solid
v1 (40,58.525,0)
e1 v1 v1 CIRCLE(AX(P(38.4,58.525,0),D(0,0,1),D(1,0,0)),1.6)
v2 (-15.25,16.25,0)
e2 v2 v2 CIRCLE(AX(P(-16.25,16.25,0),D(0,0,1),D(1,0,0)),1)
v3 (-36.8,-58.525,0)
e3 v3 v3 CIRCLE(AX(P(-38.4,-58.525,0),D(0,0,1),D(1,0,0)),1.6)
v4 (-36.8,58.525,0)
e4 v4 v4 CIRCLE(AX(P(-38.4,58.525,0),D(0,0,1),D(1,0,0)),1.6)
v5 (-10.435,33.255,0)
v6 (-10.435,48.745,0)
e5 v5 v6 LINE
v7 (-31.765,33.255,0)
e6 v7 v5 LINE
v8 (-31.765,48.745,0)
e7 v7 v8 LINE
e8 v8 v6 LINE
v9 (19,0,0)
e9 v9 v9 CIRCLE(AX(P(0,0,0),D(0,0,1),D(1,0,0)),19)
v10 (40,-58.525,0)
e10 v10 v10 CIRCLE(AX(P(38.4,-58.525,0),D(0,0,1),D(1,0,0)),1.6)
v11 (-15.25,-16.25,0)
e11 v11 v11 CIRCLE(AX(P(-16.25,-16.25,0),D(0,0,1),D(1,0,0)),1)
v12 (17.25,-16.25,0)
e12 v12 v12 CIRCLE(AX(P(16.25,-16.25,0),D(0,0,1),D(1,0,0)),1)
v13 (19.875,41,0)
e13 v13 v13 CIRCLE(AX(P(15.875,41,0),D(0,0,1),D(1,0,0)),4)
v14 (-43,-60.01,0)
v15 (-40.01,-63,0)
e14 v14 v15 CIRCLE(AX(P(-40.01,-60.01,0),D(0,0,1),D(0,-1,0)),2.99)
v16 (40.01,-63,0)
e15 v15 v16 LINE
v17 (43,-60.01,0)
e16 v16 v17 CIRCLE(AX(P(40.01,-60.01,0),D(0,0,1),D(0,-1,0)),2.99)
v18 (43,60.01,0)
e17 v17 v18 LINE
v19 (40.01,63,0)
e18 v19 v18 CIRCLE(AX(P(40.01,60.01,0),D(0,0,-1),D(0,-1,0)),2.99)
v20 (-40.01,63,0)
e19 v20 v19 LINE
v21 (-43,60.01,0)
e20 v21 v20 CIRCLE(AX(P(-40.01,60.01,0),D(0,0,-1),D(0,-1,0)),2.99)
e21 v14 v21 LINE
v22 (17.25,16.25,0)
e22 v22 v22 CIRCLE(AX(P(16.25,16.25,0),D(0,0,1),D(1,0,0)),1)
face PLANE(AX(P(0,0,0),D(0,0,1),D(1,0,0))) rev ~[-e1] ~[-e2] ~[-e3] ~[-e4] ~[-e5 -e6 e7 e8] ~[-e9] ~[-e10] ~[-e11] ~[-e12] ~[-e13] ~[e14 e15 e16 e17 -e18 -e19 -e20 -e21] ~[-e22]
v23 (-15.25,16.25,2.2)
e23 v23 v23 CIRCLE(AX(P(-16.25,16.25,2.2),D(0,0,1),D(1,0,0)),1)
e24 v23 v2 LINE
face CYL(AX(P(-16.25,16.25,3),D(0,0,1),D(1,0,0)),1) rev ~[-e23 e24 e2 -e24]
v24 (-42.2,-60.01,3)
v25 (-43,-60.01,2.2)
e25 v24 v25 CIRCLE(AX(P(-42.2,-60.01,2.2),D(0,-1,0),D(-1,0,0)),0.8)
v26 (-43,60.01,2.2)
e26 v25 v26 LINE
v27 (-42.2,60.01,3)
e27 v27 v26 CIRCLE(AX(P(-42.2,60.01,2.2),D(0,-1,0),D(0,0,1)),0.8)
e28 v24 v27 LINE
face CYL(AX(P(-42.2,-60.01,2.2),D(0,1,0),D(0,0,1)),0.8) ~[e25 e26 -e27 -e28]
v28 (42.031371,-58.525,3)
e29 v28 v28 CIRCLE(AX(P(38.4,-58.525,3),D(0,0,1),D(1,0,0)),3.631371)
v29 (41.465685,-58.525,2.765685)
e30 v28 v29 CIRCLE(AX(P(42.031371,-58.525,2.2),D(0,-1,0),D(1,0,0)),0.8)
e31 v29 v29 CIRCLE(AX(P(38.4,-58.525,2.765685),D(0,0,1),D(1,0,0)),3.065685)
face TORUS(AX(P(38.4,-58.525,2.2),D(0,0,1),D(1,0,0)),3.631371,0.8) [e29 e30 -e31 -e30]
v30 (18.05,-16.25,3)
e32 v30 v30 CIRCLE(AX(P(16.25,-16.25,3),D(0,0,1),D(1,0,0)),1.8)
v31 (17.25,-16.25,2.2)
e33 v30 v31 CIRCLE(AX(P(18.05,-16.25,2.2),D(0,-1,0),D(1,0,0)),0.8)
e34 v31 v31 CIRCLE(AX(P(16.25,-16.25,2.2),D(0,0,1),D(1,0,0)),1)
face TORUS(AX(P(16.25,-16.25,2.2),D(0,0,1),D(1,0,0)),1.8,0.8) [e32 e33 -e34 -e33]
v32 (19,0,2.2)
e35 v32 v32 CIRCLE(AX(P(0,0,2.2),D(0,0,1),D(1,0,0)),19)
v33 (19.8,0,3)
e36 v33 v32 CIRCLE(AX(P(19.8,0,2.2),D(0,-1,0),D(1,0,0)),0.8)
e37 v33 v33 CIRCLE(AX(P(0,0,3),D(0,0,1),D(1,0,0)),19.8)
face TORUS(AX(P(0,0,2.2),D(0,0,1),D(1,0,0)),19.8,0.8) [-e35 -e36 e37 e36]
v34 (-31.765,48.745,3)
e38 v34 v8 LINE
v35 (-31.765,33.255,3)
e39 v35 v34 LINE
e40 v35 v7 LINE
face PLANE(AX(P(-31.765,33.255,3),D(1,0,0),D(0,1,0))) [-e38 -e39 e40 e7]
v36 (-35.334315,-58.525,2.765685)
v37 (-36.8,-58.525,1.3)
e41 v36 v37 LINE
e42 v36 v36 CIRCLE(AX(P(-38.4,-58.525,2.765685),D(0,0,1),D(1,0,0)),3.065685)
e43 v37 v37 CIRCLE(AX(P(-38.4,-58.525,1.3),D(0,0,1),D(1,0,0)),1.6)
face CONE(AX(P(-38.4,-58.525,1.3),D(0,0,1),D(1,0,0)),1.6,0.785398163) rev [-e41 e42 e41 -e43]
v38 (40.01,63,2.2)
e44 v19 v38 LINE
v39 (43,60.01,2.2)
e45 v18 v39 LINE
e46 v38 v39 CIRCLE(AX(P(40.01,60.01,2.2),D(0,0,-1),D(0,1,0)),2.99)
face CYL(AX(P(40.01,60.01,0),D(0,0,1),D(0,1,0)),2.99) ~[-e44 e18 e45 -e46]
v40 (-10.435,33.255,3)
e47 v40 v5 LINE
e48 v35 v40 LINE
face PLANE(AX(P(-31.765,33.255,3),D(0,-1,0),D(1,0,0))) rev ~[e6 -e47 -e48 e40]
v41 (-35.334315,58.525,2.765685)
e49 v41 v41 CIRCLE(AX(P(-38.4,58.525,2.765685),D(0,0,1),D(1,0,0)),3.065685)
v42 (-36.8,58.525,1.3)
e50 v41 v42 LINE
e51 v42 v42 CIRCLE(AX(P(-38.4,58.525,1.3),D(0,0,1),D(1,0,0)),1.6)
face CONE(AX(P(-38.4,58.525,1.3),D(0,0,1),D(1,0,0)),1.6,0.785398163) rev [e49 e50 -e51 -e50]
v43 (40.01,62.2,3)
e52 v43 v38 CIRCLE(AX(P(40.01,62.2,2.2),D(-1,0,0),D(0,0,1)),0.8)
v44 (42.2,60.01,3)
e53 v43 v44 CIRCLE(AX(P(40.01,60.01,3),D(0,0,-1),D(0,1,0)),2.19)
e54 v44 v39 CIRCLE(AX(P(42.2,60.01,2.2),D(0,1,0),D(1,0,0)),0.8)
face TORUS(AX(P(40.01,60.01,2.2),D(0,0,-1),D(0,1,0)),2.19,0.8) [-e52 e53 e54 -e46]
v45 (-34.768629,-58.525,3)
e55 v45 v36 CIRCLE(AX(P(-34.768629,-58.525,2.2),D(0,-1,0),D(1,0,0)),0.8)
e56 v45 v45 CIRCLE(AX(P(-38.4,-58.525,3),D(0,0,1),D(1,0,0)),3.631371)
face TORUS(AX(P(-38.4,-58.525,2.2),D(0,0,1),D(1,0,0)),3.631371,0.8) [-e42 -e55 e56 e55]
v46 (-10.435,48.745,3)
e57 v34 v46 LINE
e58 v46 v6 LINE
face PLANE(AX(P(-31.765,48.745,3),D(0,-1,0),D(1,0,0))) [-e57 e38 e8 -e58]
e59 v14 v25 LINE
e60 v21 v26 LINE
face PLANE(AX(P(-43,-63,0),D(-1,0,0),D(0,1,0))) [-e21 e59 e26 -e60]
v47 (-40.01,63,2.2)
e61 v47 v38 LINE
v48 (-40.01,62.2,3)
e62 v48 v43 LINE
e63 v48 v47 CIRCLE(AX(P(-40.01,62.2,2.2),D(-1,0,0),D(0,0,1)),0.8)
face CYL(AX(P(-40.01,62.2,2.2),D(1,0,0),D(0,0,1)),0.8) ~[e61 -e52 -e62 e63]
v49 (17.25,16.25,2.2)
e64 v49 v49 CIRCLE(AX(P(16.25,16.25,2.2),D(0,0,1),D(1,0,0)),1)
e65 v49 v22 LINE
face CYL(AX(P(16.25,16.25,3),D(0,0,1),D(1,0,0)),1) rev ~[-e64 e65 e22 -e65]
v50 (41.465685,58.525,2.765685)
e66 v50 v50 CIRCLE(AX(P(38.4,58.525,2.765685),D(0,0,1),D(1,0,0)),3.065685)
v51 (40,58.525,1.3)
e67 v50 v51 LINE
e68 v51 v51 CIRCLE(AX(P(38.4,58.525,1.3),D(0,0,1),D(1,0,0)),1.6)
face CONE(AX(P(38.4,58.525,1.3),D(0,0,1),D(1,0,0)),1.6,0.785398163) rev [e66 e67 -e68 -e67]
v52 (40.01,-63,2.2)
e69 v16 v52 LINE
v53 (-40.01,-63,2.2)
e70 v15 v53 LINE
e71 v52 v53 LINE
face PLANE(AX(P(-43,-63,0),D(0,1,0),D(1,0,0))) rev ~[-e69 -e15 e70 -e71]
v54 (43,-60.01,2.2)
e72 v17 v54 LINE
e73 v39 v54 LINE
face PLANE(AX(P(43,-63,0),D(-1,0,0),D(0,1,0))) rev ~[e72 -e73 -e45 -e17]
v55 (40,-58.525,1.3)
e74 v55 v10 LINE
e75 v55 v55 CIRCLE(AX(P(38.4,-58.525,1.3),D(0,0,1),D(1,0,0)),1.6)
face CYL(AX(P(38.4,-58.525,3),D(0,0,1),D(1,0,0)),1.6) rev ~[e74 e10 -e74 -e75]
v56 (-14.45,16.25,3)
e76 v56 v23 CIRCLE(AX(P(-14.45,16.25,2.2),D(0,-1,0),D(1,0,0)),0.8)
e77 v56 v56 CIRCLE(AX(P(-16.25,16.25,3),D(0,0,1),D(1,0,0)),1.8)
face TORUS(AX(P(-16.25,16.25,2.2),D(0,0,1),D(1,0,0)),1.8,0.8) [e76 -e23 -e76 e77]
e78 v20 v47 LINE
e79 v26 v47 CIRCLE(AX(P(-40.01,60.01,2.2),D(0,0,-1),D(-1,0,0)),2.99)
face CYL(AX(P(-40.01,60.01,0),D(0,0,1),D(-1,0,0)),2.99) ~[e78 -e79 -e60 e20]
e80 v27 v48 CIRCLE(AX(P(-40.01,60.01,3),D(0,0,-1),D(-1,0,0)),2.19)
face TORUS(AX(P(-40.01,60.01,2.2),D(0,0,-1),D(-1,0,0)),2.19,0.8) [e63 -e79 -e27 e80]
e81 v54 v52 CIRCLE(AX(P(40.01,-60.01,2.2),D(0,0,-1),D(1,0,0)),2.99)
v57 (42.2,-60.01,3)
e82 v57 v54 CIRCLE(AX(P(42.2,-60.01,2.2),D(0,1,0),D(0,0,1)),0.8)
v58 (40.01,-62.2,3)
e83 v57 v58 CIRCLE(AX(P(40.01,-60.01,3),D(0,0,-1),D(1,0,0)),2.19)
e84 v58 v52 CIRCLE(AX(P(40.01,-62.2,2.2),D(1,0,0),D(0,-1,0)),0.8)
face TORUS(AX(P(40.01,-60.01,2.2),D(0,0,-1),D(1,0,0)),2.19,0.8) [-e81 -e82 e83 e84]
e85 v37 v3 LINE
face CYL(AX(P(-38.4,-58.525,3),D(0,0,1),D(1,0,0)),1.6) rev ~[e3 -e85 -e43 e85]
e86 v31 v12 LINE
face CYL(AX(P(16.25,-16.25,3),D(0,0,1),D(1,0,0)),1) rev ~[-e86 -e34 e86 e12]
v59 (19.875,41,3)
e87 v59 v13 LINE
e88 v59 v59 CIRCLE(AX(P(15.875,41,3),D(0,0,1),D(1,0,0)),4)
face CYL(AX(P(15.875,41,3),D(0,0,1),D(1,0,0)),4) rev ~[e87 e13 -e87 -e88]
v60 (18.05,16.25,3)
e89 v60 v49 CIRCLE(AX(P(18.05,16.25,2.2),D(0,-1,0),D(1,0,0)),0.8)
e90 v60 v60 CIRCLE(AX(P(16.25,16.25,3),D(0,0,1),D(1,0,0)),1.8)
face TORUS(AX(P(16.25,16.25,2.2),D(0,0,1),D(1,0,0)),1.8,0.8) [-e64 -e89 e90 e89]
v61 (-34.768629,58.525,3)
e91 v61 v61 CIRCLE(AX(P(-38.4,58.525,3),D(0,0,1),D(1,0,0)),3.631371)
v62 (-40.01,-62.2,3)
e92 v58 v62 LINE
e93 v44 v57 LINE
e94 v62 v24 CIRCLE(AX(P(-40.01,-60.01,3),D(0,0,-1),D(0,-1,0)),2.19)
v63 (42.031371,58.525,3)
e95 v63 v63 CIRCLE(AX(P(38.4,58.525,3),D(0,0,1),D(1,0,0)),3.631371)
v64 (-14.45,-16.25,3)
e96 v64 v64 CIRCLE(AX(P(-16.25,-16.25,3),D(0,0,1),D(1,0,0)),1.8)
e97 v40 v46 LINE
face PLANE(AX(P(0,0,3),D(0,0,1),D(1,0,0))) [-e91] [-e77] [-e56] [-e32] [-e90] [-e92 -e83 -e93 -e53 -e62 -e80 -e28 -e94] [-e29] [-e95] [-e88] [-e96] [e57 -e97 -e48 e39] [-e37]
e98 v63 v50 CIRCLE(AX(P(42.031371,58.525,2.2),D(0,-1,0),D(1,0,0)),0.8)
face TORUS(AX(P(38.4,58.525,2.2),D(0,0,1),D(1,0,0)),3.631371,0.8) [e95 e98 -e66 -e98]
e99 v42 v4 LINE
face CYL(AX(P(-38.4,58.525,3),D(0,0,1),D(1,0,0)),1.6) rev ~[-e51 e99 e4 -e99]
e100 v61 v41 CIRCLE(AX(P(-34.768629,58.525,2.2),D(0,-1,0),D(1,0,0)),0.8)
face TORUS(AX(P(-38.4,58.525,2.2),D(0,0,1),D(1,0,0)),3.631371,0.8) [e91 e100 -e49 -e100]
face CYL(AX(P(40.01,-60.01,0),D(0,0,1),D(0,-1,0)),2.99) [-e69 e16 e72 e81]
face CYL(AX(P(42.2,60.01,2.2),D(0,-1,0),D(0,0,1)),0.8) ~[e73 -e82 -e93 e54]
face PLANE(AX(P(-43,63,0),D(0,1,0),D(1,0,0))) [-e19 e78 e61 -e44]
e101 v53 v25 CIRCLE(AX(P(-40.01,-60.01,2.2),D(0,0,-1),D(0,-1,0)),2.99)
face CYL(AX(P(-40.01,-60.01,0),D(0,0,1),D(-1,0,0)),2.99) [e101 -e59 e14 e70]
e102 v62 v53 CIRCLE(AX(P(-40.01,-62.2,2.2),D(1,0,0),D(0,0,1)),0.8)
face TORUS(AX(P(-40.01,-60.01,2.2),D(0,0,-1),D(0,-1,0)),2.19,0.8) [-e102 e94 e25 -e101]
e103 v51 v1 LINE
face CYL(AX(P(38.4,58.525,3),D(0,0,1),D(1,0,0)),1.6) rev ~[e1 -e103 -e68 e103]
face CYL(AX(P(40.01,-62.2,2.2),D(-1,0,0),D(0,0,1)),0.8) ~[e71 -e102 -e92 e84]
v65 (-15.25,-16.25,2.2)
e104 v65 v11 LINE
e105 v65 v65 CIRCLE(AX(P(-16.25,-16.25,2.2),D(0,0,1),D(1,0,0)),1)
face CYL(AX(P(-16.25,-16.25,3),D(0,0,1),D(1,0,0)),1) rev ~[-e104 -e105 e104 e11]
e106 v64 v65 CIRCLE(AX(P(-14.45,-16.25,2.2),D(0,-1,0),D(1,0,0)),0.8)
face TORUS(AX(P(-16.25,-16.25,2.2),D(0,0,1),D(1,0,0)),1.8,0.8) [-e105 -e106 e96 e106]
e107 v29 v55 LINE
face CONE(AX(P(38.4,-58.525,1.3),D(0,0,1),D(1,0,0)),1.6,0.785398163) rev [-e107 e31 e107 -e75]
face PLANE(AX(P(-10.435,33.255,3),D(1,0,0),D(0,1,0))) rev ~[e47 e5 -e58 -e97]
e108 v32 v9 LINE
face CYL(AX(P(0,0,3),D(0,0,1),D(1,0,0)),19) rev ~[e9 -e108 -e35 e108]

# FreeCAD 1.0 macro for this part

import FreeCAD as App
import Part
import Sketcher
from FreeCAD import Vector
Q = App.Units.Quantity


def edges_at(feature, points):
    """Names of the edges that pass closest to the given points."""
    edges = feature.Shape.Edges
    near = lambda p: min(range(len(edges)), key=lambda i: edges[i].distToShape(Part.Vertex(*p))[0])
    return sorted({f"Edge{near(p) + 1}" for p in points})


def add_polygon(sketch, points):
    """Adds a closed chain of lines whose ends are joined by coincident constraints."""
    first, n = sketch.GeometryCount, len(points)
    for a, b in zip(points, points[1:] + points[:1]):
        sketch.addGeometry(Part.LineSegment(App.Vector(*a, 0), App.Vector(*b, 0)), False)
    for i in range(n):
        sketch.addConstraint(Sketcher.Constraint("Coincident", first + i, 2, first + (i + 1) % n, 1))

doc = App.newDocument("Part")
body = doc.addObject("PartDesign::Body", "Body")

# Sketch on XY plane
sketch1 = body.newObject("Sketcher::SketchObject", "Sketch")
sketch1.AttachmentSupport = (doc.getObject("XY_Plane"), [""])
sketch1.MapMode = "FlatFace"
add_polygon(sketch1, [(-43, 63), (-43, -63), (43, -63), (43, 63)])  # lines 0-3
sketch1.addConstraint([
    Sketcher.Constraint("Vertical", 0),
    Sketcher.Constraint("Horizontal", 1),
    Sketcher.Constraint("Vertical", 2),
    Sketcher.Constraint("Horizontal", 3),
    Sketcher.Constraint("Symmetric", 0, 2, 2, 2, -1, 1),
    Sketcher.Constraint("DistanceX", 1, 1, 1, 2, Q("86 mm")),
    Sketcher.Constraint("DistanceY", 0, 2, 0, 1, Q("126 mm")),
])
pad1 = body.newObject("PartDesign::Pad", "Pad")
pad1.Profile = sketch1
pad1.Length = 3

# Sketch on XY plane
sketch2 = body.newObject("Sketcher::SketchObject", "Sketch001")
sketch2.AttachmentSupport = (doc.getObject("XY_Plane"), [""])
sketch2.MapMode = "FlatFace"
sketch2.AttachmentOffset = App.Placement(Vector(0, 0, 3), App.Rotation())
sketch2.addGeometry([
    Part.Circle(Vector(0, 0, 0), Vector(0, 0, 1), 19),  # 0
    Part.Circle(Vector(-16.25, 16.25, 0), Vector(0, 0, 1), 1),  # 1
    Part.Circle(Vector(16.25, 16.25, 0), Vector(0, 0, 1), 1),  # 2
    Part.Circle(Vector(16.25, -16.25, 0), Vector(0, 0, 1), 1),  # 3
    Part.Circle(Vector(-16.25, -16.25, 0), Vector(0, 0, 1), 1),  # 4
    Part.Circle(Vector(-38.4, 58.525, 0), Vector(0, 0, 1), 1.6),  # 5
    Part.Circle(Vector(38.4, 58.525, 0), Vector(0, 0, 1), 1.6),  # 6
    Part.Circle(Vector(38.4, -58.525, 0), Vector(0, 0, 1), 1.6),  # 7
    Part.Circle(Vector(-38.4, -58.525, 0), Vector(0, 0, 1), 1.6),  # 8
], False)
sketch2.addConstraint([
    Sketcher.Constraint("Coincident", 0, 3, -1, 1),
    Sketcher.Constraint("Equal", 1, 2),
    Sketcher.Constraint("Equal", 2, 3),
    Sketcher.Constraint("Equal", 3, 4),
    Sketcher.Constraint("Equal", 5, 6),
    Sketcher.Constraint("Equal", 6, 7),
    Sketcher.Constraint("Equal", 7, 8),
    Sketcher.Constraint("Symmetric", 1, 3, 3, 3, -1, 1),
    Sketcher.Constraint("Symmetric", 2, 3, 4, 3, -1, 1),
    Sketcher.Constraint("Symmetric", 5, 3, 7, 3, -1, 1),
    Sketcher.Constraint("Symmetric", 6, 3, 8, 3, -1, 1),
    Sketcher.Constraint("Symmetric", 1, 3, 2, 3, -2),
    Sketcher.Constraint("Symmetric", 5, 3, 6, 3, -2),
    Sketcher.Constraint("Diameter", 0, Q("38 mm")),
    Sketcher.Constraint("Diameter", 1, Q("2 mm")),
    Sketcher.Constraint("Diameter", 5, Q("3.2 mm")),
    Sketcher.Constraint("DistanceX", 5, 3, -1, 1, Q("38.4 mm")),
    Sketcher.Constraint("DistanceX", 1, 3, 2, 3, Q("32.5 mm")),
    Sketcher.Constraint("DistanceY", 3, 3, 2, 3, Q("32.5 mm")),
    Sketcher.Constraint("DistanceY", -1, 1, 5, 3, Q("58.525 mm")),
])
pocket1 = body.newObject("PartDesign::Pocket", "Pocket")
pocket1.Profile = sketch2
pocket1.Length = 5
doc.recompute()

fillet = body.newObject("PartDesign::Fillet", "Fillet")
fillet.Base = (pocket1, edges_at(pocket1, [
    (-43, -63, 1.5),
    (43, -63, 1.5),
    (43, 63, 1.5),
    (-43, 63, 1.5),
]))
fillet.Radius = 2.99
doc.recompute()

chamfer = body.newObject("PartDesign::Chamfer", "Chamfer")
chamfer.Base = (fillet, edges_at(fillet, [
    (-40, 58.525, 3),
    (36.8, 58.525, 3),
    (36.8, -58.525, 3),
    (-40, -58.525, 3),
]))
chamfer.Size = 1.7
doc.recompute()

fillet2 = body.newObject("PartDesign::Fillet", "Fillet001")
fillet2.Base = (chamfer, edges_at(chamfer, [
    (-41.7, 58.525, 3),
    (0, 63, 3),
    (-42.124, 62.124, 3),
    (42.124, 62.124, 3),
    (-43, 0, 3),
    (43, 0, 3),
    (-42.124, -62.124, 3),
    (42.124, -62.124, 3),
    (0, -63, 3),
    (15.25, -16.25, 3),
    (-19, 0, 3),
    (-17.25, -16.25, 3),
    (-17.25, 16.25, 3),
    (15.25, 16.25, 3),
    (35.1, 58.525, 3),
    (35.1, -58.525, 3),
    (-41.7, -58.525, 3),
]))
fillet2.Radius = 0.8

# Sketch on XY plane
sketch3 = body.newObject("Sketcher::SketchObject", "Sketch002")
sketch3.AttachmentSupport = (doc.getObject("XY_Plane"), [""])
sketch3.MapMode = "FlatFace"
sketch3.AttachmentOffset = App.Placement(Vector(0, 0, 3), App.Rotation())
sketch3.addGeometry(Part.Circle(Vector(15.875, 41, 0), Vector(0, 0, 1), 4), False)  # 0
add_polygon(sketch3, [(-31.765, 48.745), (-31.765, 33.255), (-10.435, 33.255), (-10.435, 48.745)])  # lines 1-4
sketch3.addConstraint([
    Sketcher.Constraint("Vertical", 1),
    Sketcher.Constraint("Horizontal", 2),
    Sketcher.Constraint("Vertical", 3),
    Sketcher.Constraint("Horizontal", 4),
    Sketcher.Constraint("Diameter", 0, Q("8 mm")),
    Sketcher.Constraint("DistanceY", -1, 1, 0, 3, Q("41 mm")),
    Sketcher.Constraint("DistanceX", 2, 1, 2, 2, Q("21.33 mm")),
    Sketcher.Constraint("DistanceY", 1, 2, 1, 1, Q("15.49 mm")),
    Sketcher.Constraint("DistanceX", 1, 2, 0, 3, Q("47.64 mm")),
    Sketcher.Constraint("DistanceX", -1, 1, 0, 3, Q("15.875 mm")),
    Sketcher.Constraint("DistanceY", -1, 1, 1, 2, Q("33.255 mm")),
])
pocket2 = body.newObject("PartDesign::Pocket", "Pocket001")
pocket2.Profile = sketch3
pocket2.Type = "ThroughAll"

doc.recompute()
